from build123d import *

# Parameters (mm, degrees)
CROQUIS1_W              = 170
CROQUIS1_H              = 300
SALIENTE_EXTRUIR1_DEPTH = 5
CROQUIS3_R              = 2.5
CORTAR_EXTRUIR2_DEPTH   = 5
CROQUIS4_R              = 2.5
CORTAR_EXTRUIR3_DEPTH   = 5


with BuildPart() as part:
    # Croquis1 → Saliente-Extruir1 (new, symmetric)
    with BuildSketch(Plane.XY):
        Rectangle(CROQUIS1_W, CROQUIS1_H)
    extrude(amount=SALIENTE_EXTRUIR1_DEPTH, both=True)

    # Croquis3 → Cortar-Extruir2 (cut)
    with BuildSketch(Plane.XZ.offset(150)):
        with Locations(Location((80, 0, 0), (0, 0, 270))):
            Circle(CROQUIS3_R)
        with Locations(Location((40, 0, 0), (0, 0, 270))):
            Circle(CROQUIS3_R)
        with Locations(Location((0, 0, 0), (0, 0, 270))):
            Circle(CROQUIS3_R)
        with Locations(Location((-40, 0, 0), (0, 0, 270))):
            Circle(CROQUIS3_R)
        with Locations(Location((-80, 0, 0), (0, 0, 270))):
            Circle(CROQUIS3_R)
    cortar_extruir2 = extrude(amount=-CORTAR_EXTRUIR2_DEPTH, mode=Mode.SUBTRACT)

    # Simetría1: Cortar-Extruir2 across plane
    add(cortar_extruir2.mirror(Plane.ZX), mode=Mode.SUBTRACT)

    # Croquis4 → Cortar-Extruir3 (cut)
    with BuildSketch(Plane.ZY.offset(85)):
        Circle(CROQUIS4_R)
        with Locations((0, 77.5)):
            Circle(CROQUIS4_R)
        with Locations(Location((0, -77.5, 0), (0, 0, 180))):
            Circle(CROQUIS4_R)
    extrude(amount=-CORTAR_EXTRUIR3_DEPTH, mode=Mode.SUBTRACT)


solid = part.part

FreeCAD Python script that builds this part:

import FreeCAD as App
import Part
import Sketcher
Q = App.Units.Quantity

doc = App.newDocument("Part")
body = doc.addObject("PartDesign::Body", "Body")

sketch1 = doc.addObject("Sketcher::SketchObject", "Sketch")
body.addObject(sketch1)
sketch1.AttachmentSupport = (doc.XY_Plane, [""])
sketch1.MapMode = "FlatFace"
sketch1.addGeometry([
    Part.LineSegment(App.Vector(-85, 150, 0), App.Vector(-85, -150, 0)),
    Part.LineSegment(App.Vector(-85, -150, 0), App.Vector(85, -150, 0)),
    Part.LineSegment(App.Vector(85, -150, 0), App.Vector(85, 150, 0)),
    Part.LineSegment(App.Vector(85, 150, 0), App.Vector(-85, 150, 0)),
], False)
sketch1.addConstraint([
    Sketcher.Constraint("Coincident", 0, 2, 1, 1),
    Sketcher.Constraint("Coincident", 1, 2, 2, 1),
    Sketcher.Constraint("Coincident", 2, 2, 3, 1),
    Sketcher.Constraint("Coincident", 3, 2, 0, 1),
    Sketcher.Constraint("Vertical", 0),
    Sketcher.Constraint("Horizontal", 1),
    Sketcher.Constraint("Vertical", 2),
    Sketcher.Constraint("Horizontal", 3),
    Sketcher.Constraint("Symmetric", 0, 2, 2, 2, -1, 1),
    Sketcher.Constraint("DistanceX", 1, 1, 1, 2, Q("170 mm")),
    Sketcher.Constraint("DistanceY", 0, 2, 0, 1, Q("300 mm")),
])
pad1 = doc.addObject("PartDesign::Pad", "Pad")
body.addObject(pad1)
pad1.Profile = sketch1
pad1.Length = 10
pad1.Midplane = True

sketch2 = doc.addObject("Sketcher::SketchObject", "Sketch001")
body.addObject(sketch2)
sketch2.AttachmentSupport = (doc.XZ_Plane, [""])
sketch2.MapMode = "FlatFace"
sketch2.AttachmentOffset = App.Placement(App.Vector(0, 0, 150), App.Rotation())
sketch2.addGeometry([
    Part.Circle(App.Vector(80, 0, 0), App.Vector(0, 0, 1), 2.5),
    Part.Circle(App.Vector(40, 0, 0), App.Vector(0, 0, 1), 2.5),
    Part.Circle(App.Vector(0, 0, 0), App.Vector(0, 0, 1), 2.5),
    Part.Circle(App.Vector(-40, 0, 0), App.Vector(0, 0, 1), 2.5),
    Part.Circle(App.Vector(-80, 0, 0), App.Vector(0, 0, 1), 2.5),
], False)
sketch2.addConstraint([
    Sketcher.Constraint("Coincident", 2, 3, -1, 1),
    Sketcher.Constraint("Equal", 0, 1),
    Sketcher.Constraint("Equal", 1, 2),
    Sketcher.Constraint("Equal", 2, 3),
    Sketcher.Constraint("Equal", 3, 4),
    Sketcher.Constraint("Symmetric", 1, 3, 3, 3, -1, 1),
    Sketcher.Constraint("Symmetric", 0, 3, 4, 3, -1, 1),
    Sketcher.Constraint("PointOnObject", 0, 3, -1),
    Sketcher.Constraint("PointOnObject", 1, 3, -1),
    Sketcher.Constraint("Diameter", 0, Q("5 mm")),
    Sketcher.Constraint("DistanceX", -1, 1, 0, 3, Q("80 mm")),
    Sketcher.Constraint("DistanceX", -1, 1, 1, 3, Q("40 mm")),
])
pocket1 = doc.addObject("PartDesign::Pocket", "Pocket")
body.addObject(pocket1)
pocket1.Profile = sketch2
pocket1.Length = 5
doc.recompute()

mirrored = doc.addObject("PartDesign::Mirrored", "Mirrored")
body.addObject(mirrored)
mirrored.Originals = [pocket1]
mirrored.MirrorPlane = (doc.XZ_Plane, [""])
body.Tip = mirrored

sketch3 = doc.addObject("Sketcher::SketchObject", "Sketch002")
body.addObject(sketch3)
sketch3.AttachmentSupport = (doc.YZ_Plane, [""])
sketch3.MapMode = "FlatFace"
sketch3.AttachmentOffset = App.Placement(App.Vector(0, 0, -85), App.Rotation())
sketch3.addGeometry([
    Part.Circle(App.Vector(0, 0, 0), App.Vector(0, 0, 1), 2.5),
    Part.Circle(App.Vector(77.5, 0, 0), App.Vector(0, 0, 1), 2.5),
    Part.Circle(App.Vector(-77.5, 0, 0), App.Vector(0, 0, 1), 2.5),
], False)
sketch3.addConstraint([
    Sketcher.Constraint("Coincident", 0, 3, -1, 1),
    Sketcher.Constraint("Equal", 0, 1),
    Sketcher.Constraint("Equal", 1, 2),
    Sketcher.Constraint("Symmetric", 1, 3, 2, 3, -1, 1),
    Sketcher.Constraint("PointOnObject", 1, 3, -1),
    Sketcher.Constraint("Diameter", 0, Q("5 mm")),
    Sketcher.Constraint("DistanceX", 2, 3, 1, 3, Q("155 mm")),
])
pocket2 = doc.addObject("PartDesign::Pocket", "Pocket001")
body.addObject(pocket2)
pocket2.Profile = sketch3
pocket2.Length = 5
pocket2.Reversed = True

doc.recompute()
